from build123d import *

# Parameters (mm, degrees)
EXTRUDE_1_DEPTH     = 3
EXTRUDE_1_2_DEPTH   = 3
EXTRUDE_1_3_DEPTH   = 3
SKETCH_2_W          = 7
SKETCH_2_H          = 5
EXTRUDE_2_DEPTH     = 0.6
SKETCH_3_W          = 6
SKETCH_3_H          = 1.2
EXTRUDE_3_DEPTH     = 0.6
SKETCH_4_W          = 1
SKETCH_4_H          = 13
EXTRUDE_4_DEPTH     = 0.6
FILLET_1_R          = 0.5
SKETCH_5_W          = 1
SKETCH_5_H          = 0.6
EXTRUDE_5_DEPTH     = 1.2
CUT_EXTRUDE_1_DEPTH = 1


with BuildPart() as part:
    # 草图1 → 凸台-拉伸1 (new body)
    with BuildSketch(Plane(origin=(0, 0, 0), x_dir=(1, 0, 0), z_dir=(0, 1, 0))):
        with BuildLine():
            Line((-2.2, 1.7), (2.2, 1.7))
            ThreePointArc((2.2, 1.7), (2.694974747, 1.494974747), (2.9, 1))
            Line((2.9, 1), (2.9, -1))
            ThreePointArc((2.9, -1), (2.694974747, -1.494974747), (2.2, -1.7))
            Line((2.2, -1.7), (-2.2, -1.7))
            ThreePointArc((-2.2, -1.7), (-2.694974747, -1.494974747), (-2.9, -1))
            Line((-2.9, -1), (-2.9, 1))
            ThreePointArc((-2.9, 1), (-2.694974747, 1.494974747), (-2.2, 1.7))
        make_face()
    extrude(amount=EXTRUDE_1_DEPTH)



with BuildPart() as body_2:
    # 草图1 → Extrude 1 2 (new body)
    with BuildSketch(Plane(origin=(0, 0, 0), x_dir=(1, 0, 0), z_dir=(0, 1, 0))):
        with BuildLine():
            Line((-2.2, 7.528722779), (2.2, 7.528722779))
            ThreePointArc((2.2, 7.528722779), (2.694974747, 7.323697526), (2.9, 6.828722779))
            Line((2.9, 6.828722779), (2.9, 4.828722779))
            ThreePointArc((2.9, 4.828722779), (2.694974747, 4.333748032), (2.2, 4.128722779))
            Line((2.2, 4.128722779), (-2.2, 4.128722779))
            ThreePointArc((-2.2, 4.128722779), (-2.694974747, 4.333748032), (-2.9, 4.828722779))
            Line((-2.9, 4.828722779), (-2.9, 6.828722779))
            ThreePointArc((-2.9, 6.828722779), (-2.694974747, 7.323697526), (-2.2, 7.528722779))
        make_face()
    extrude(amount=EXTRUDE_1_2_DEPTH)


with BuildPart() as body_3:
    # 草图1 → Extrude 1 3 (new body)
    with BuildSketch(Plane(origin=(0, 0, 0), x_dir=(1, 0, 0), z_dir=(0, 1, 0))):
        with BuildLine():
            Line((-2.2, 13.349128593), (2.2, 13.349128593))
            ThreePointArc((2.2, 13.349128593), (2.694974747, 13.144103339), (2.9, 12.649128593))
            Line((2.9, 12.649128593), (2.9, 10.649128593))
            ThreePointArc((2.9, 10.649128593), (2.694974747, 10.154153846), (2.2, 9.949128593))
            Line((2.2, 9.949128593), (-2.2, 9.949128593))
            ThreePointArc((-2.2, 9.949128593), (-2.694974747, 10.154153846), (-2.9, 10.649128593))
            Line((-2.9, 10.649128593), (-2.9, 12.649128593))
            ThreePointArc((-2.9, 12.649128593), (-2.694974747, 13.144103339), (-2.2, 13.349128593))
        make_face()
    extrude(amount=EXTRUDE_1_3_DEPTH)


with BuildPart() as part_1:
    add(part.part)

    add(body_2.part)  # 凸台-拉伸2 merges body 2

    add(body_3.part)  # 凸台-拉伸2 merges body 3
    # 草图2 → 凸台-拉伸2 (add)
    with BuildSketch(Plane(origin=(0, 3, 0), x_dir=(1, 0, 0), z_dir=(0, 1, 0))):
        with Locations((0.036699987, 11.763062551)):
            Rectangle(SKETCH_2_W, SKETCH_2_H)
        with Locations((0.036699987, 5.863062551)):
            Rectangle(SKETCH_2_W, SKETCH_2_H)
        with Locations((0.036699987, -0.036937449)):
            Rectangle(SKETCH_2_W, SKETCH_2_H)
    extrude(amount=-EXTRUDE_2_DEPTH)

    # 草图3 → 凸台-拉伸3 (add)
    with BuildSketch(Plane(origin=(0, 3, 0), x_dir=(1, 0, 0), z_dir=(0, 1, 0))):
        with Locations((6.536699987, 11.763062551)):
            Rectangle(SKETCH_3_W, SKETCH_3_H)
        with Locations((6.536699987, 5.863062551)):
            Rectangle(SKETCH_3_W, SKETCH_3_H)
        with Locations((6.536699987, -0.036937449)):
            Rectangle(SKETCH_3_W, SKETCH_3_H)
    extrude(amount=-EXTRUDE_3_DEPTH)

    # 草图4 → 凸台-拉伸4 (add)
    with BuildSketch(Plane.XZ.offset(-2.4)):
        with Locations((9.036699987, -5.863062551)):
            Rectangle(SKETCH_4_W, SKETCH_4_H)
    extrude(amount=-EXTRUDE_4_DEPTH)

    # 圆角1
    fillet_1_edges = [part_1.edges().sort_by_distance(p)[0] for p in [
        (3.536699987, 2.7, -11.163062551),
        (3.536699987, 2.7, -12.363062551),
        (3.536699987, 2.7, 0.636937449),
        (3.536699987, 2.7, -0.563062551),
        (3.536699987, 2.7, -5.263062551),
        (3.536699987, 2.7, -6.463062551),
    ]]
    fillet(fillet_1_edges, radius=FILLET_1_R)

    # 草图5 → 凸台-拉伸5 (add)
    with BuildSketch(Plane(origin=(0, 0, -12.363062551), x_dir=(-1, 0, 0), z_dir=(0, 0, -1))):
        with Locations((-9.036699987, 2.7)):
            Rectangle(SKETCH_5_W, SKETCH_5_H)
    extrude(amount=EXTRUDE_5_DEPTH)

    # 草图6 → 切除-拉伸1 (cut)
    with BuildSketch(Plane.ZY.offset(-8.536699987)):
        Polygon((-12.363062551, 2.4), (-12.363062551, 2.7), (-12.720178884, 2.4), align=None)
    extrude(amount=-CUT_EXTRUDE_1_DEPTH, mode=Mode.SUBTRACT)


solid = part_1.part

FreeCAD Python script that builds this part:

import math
import FreeCAD as App
import Part
import Sketcher
Q = App.Units.Quantity


def edges_at(feature, points):
    """Names of the edges that pass closest to the given points."""
    edges = feature.Shape.Edges
    near = lambda p: min(range(len(edges)), key=lambda i: edges[i].distToShape(Part.Vertex(*p))[0])
    return sorted({f"Edge{near(p) + 1}" for p in points})


def add_polygon(sketch, points):
    """Adds a closed chain of lines whose ends are joined by coincident constraints."""
    first, n = sketch.GeometryCount, len(points)
    for a, b in zip(points, points[1:] + points[:1]):
        sketch.addGeometry(Part.LineSegment(App.Vector(*a, 0), App.Vector(*b, 0)), False)
    for i in range(n):
        sketch.addConstraint(Sketcher.Constraint("Coincident", first + i, 2, first + (i + 1) % n, 1))

doc = App.newDocument("Part")
body = doc.addObject("PartDesign::Body", "Body")

# Sketch on XZ plane
sketch1 = doc.addObject("Sketcher::SketchObject", "Sketch")
body.addObject(sketch1)
sketch1.AttachmentSupport = (doc.XZ_Plane, [""])
sketch1.MapMode = "FlatFace"
sketch1.addGeometry([
    Part.LineSegment(App.Vector(2.2, -1.7, 0), App.Vector(-2.2, -1.7, 0)),  # 0
    Part.ArcOfCircle(Part.Circle(App.Vector(-2.2, -1, 0), App.Vector(0, 0, 1), 0.7), math.radians(180), math.radians(270)),  # 1
    Part.LineSegment(App.Vector(-2.9, -1, 0), App.Vector(-2.9, 1, 0)),  # 2
    Part.ArcOfCircle(Part.Circle(App.Vector(-2.2, 1, 0), App.Vector(0, 0, 1), 0.7), math.radians(90), math.radians(180)),  # 3
    Part.LineSegment(App.Vector(-2.2, 1.7, 0), App.Vector(2.2, 1.7, 0)),  # 4
    Part.ArcOfCircle(Part.Circle(App.Vector(2.2, 1, 0), App.Vector(0, 0, 1), 0.7), math.radians(0), math.radians(90)),  # 5
    Part.LineSegment(App.Vector(2.9, 1, 0), App.Vector(2.9, -1, 0)),  # 6
    Part.ArcOfCircle(Part.Circle(App.Vector(2.2, -1, 0), App.Vector(0, 0, 1), 0.7), math.radians(-90), math.radians(0)),  # 7
], False)
sketch1.addConstraint([
    Sketcher.Constraint("Tangent", 0, 2, 1, 2),
    Sketcher.Constraint("Tangent", 1, 1, 2, 1),
    Sketcher.Constraint("Tangent", 2, 2, 3, 2),
    Sketcher.Constraint("Tangent", 3, 1, 4, 1),
    Sketcher.Constraint("Tangent", 4, 2, 5, 2),
    Sketcher.Constraint("Tangent", 5, 1, 6, 1),
    Sketcher.Constraint("Tangent", 6, 2, 7, 2),
    Sketcher.Constraint("Tangent", 7, 1, 0, 1),
    Sketcher.Constraint("Horizontal", 0),
    Sketcher.Constraint("Vertical", 2),
    Sketcher.Constraint("Horizontal", 4),
    Sketcher.Constraint("Vertical", 6),
    Sketcher.Constraint("Equal", 1, 3),
    Sketcher.Constraint("Equal", 3, 5),
    Sketcher.Constraint("Equal", 5, 7),
    Sketcher.Constraint("Symmetric", 1, 3, 5, 3, -1, 1),
    Sketcher.Constraint("Radius", 1, Q("0.7 mm")),
    Sketcher.Constraint("DistanceY", 2, 1, 2, 2, Q("2 mm")),
    Sketcher.Constraint("DistanceX", 0, 2, 0, 1, Q("4.4 mm")),
])
pad1 = doc.addObject("PartDesign::Pad", "Pad")
body.addObject(pad1)
pad1.Profile = sketch1
pad1.Length = 3
pad1.Reversed = True
body2 = doc.addObject("PartDesign::Body", "Body001")

# Sketch on XZ plane
sketch2 = doc.addObject("Sketcher::SketchObject", "Sketch001")
body2.addObject(sketch2)
sketch2.AttachmentSupport = (doc.getObject("XZ_Plane001"), [""])
sketch2.MapMode = "FlatFace"
sketch2.addGeometry([
    Part.LineSegment(App.Vector(2.2, -7.5, 0), App.Vector(-2.2, -7.5, 0)),  # 0
    Part.ArcOfCircle(Part.Circle(App.Vector(-2.2, -6.8, 0), App.Vector(0, 0, 1), 0.7), math.radians(180), math.radians(270)),  # 1
    Part.LineSegment(App.Vector(-2.9, -6.8, 0), App.Vector(-2.9, -4.8, 0)),  # 2
    Part.ArcOfCircle(Part.Circle(App.Vector(-2.2, -4.8, 0), App.Vector(0, 0, 1), 0.7), math.radians(90), math.radians(180)),  # 3
    Part.LineSegment(App.Vector(-2.2, -4.1, 0), App.Vector(2.2, -4.1, 0)),  # 4
    Part.ArcOfCircle(Part.Circle(App.Vector(2.2, -4.8, 0), App.Vector(0, 0, 1), 0.7), math.radians(0), math.radians(90)),  # 5
    Part.LineSegment(App.Vector(2.9, -4.8, 0), App.Vector(2.9, -6.8, 0)),  # 6
    Part.ArcOfCircle(Part.Circle(App.Vector(2.2, -6.8, 0), App.Vector(0, 0, 1), 0.7), math.radians(-90), math.radians(0)),  # 7
], False)
sketch2.addConstraint([
    Sketcher.Constraint("Tangent", 0, 2, 1, 2),
    Sketcher.Constraint("Tangent", 1, 1, 2, 1),
    Sketcher.Constraint("Tangent", 2, 2, 3, 2),
    Sketcher.Constraint("Tangent", 3, 1, 4, 1),
    Sketcher.Constraint("Tangent", 4, 2, 5, 2),
    Sketcher.Constraint("Tangent", 5, 1, 6, 1),
    Sketcher.Constraint("Tangent", 6, 2, 7, 2),
    Sketcher.Constraint("Tangent", 7, 1, 0, 1),
    Sketcher.Constraint("Horizontal", 0),
    Sketcher.Constraint("Vertical", 2),
    Sketcher.Constraint("Horizontal", 4),
    Sketcher.Constraint("Vertical", 6),
    Sketcher.Constraint("Equal", 1, 3),
    Sketcher.Constraint("Equal", 3, 5),
    Sketcher.Constraint("Equal", 5, 7),
    Sketcher.Constraint("Radius", 1, Q("0.7 mm")),
    Sketcher.Constraint("DistanceY", 2, 1, 2, 2, Q("2 mm")),
    Sketcher.Constraint("DistanceX", 0, 2, 0, 1, Q("4.4 mm")),
    Sketcher.Constraint("DistanceX", 1, 3, -1, 1, Q("2.2 mm")),
    Sketcher.Constraint("DistanceY", 1, 3, -1, 1, Q("6.828723 mm")),
])
pad2 = doc.addObject("PartDesign::Pad", "Pad001")
body2.addObject(pad2)
pad2.Profile = sketch2
pad2.Length = 3
pad2.Reversed = True
body3 = doc.addObject("PartDesign::Body", "Body002")

# Sketch on XZ plane
sketch3 = doc.addObject("Sketcher::SketchObject", "Sketch002")
body3.addObject(sketch3)
sketch3.AttachmentSupport = (doc.getObject("XZ_Plane002"), [""])
sketch3.MapMode = "FlatFace"
sketch3.addGeometry([
    Part.LineSegment(App.Vector(2.2, -13.3, 0), App.Vector(-2.2, -13.3, 0)),  # 0
    Part.ArcOfCircle(Part.Circle(App.Vector(-2.2, -12.6, 0), App.Vector(0, 0, 1), 0.7), math.radians(-180), math.radians(-90)),  # 1
    Part.LineSegment(App.Vector(-2.9, -12.6, 0), App.Vector(-2.9, -10.6, 0)),  # 2
    Part.ArcOfCircle(Part.Circle(App.Vector(-2.2, -10.6, 0), App.Vector(0, 0, 1), 0.7), math.radians(90), math.radians(180)),  # 3
    Part.LineSegment(App.Vector(-2.2, -9.9, 0), App.Vector(2.2, -9.9, 0)),  # 4
    Part.ArcOfCircle(Part.Circle(App.Vector(2.2, -10.6, 0), App.Vector(0, 0, 1), 0.7), math.radians(0), math.radians(90)),  # 5
    Part.LineSegment(App.Vector(2.9, -10.6, 0), App.Vector(2.9, -12.6, 0)),  # 6
    Part.ArcOfCircle(Part.Circle(App.Vector(2.2, -12.6, 0), App.Vector(0, 0, 1), 0.7), math.radians(-90), math.radians(0)),  # 7
], False)
sketch3.addConstraint([
    Sketcher.Constraint("Tangent", 0, 2, 1, 2),
    Sketcher.Constraint("Tangent", 1, 1, 2, 1),
    Sketcher.Constraint("Tangent", 2, 2, 3, 2),
    Sketcher.Constraint("Tangent", 3, 1, 4, 1),
    Sketcher.Constraint("Tangent", 4, 2, 5, 2),
    Sketcher.Constraint("Tangent", 5, 1, 6, 1),
    Sketcher.Constraint("Tangent", 6, 2, 7, 2),
    Sketcher.Constraint("Tangent", 7, 1, 0, 1),
    Sketcher.Constraint("Horizontal", 0),
    Sketcher.Constraint("Vertical", 2),
    Sketcher.Constraint("Horizontal", 4),
    Sketcher.Constraint("Vertical", 6),
    Sketcher.Constraint("Equal", 1, 3),
    Sketcher.Constraint("Equal", 3, 5),
    Sketcher.Constraint("Equal", 5, 7),
    Sketcher.Constraint("Radius", 1, Q("0.7 mm")),
    Sketcher.Constraint("DistanceY", 2, 1, 2, 2, Q("2 mm")),
    Sketcher.Constraint("DistanceX", 0, 2, 0, 1, Q("4.4 mm")),
    Sketcher.Constraint("DistanceX", 1, 3, -1, 1, Q("2.2 mm")),
    Sketcher.Constraint("DistanceY", 1, 3, -1, 1, Q("12.649129 mm")),
])
pad3 = doc.addObject("PartDesign::Pad", "Pad002")
body3.addObject(pad3)
pad3.Profile = sketch3
pad3.Length = 3
pad3.Reversed = True
body.AllowCompound = True
doc.recompute()

boolean = doc.addObject("PartDesign::Boolean", "Boolean")
body.addObject(boolean)
boolean.Type = "Fuse"
boolean.addObjects([body2])
doc.recompute()

boolean2 = doc.addObject("PartDesign::Boolean", "Boolean001")
body.addObject(boolean2)
boolean2.Type = "Fuse"
boolean2.addObjects([body3])

# Sketch on XZ plane
sketch4 = doc.addObject("Sketcher::SketchObject", "Sketch003")
body.addObject(sketch4)
sketch4.AttachmentSupport = (doc.XZ_Plane, [""])
sketch4.MapMode = "FlatFace"
sketch4.AttachmentOffset = App.Placement(App.Vector(0, 0, -3), App.Rotation())
add_polygon(sketch4, [(-3, -14), (-3, -9), (4, -9), (4, -14)])  # lines 0-3
add_polygon(sketch4, [(-3, -8), (-3, -3), (4, -3), (4, -8)])  # lines 4-7
add_polygon(sketch4, [(-3, -2), (-3, 3), (4, 3), (4, -2)])  # lines 8-11
sketch4.addConstraint([
    Sketcher.Constraint("Vertical", 0),
    Sketcher.Constraint("Horizontal", 1),
    Sketcher.Constraint("Vertical", 2),
    Sketcher.Constraint("Horizontal", 3),
    Sketcher.Constraint("Vertical", 4),
    Sketcher.Constraint("Horizontal", 5),
    Sketcher.Constraint("Vertical", 6),
    Sketcher.Constraint("Horizontal", 7),
    Sketcher.Constraint("Vertical", 8),
    Sketcher.Constraint("Horizontal", 9),
    Sketcher.Constraint("Vertical", 10),
    Sketcher.Constraint("Horizontal", 11),
    Sketcher.Constraint("Vertical", 3, 2, 4, 2),
    Sketcher.Constraint("Vertical", 2, 2, 5, 2),
    Sketcher.Constraint("Vertical", 7, 2, 8, 2),
    Sketcher.Constraint("Vertical", 6, 2, 9, 2),
    Sketcher.Constraint("Equal", 2, 4),
    Sketcher.Constraint("Equal", 6, 8),
    Sketcher.Constraint("DistanceX", 1, 1, 1, 2, Q("7 mm")),
    Sketcher.Constraint("DistanceY", 0, 1, 0, 2, Q("5 mm")),
    Sketcher.Constraint("DistanceY", 0, 2, 4, 2, Q("5.9 mm")),
    Sketcher.Constraint("DistanceY", 4, 2, 8, 2, Q("5.9 mm")),
    Sketcher.Constraint("DistanceX", 0, 2, -1, 1, Q("3.4633 mm")),
    Sketcher.Constraint("DistanceY", 0, 2, -1, 1, Q("9.263063 mm")),
])
pad4 = doc.addObject("PartDesign::Pad", "Pad003")
body.addObject(pad4)
pad4.Profile = sketch4
pad4.Length = 0.6

# Sketch on XZ plane
sketch5 = doc.addObject("Sketcher::SketchObject", "Sketch004")
body.addObject(sketch5)
sketch5.AttachmentSupport = (doc.XZ_Plane, [""])
sketch5.MapMode = "FlatFace"
sketch5.AttachmentOffset = App.Placement(App.Vector(0, 0, -3), App.Rotation())
add_polygon(sketch5, [(3.5, -12.4), (3.5, -11.2), (9.5, -11.2), (9.5, -12.4)])  # lines 0-3
add_polygon(sketch5, [(3.5, -6.5), (3.5, -5.3), (9.5, -5.3), (9.5, -6.5)])  # lines 4-7
add_polygon(sketch5, [(3.5, -0.6), (3.5, 0.6), (9.5, 0.6), (9.5, -0.6)])  # lines 8-11
sketch5.addConstraint([
    Sketcher.Constraint("Vertical", 0),
    Sketcher.Constraint("Horizontal", 1),
    Sketcher.Constraint("Vertical", 2),
    Sketcher.Constraint("Horizontal", 3),
    Sketcher.Constraint("Vertical", 4),
    Sketcher.Constraint("Horizontal", 5),
    Sketcher.Constraint("Vertical", 6),
    Sketcher.Constraint("Horizontal", 7),
    Sketcher.Constraint("Vertical", 8),
    Sketcher.Constraint("Horizontal", 9),
    Sketcher.Constraint("Vertical", 10),
    Sketcher.Constraint("Horizontal", 11),
    Sketcher.Constraint("Vertical", 3, 2, 4, 2),
    Sketcher.Constraint("Vertical", 2, 2, 5, 2),
    Sketcher.Constraint("Vertical", 7, 2, 8, 2),
    Sketcher.Constraint("Vertical", 6, 2, 9, 2),
    Sketcher.Constraint("Equal", 2, 4),
    Sketcher.Constraint("Equal", 6, 8),
    Sketcher.Constraint("DistanceX", 1, 1, 1, 2, Q("6 mm")),
    Sketcher.Constraint("DistanceY", 0, 1, 0, 2, Q("1.2 mm")),
    Sketcher.Constraint("DistanceY", 0, 2, 4, 2, Q("5.9 mm")),
    Sketcher.Constraint("DistanceY", 4, 2, 8, 2, Q("5.9 mm")),
    Sketcher.Constraint("DistanceX", -1, 1, 0, 2, Q("3.5367 mm")),
    Sketcher.Constraint("DistanceY", 0, 2, -1, 1, Q("11.163063 mm")),
])
pad5 = doc.addObject("PartDesign::Pad", "Pad004")
body.addObject(pad5)
pad5.Profile = sketch5
pad5.Length = 0.6

# Sketch on XZ plane
sketch6 = doc.addObject("Sketcher::SketchObject", "Sketch005")
body.addObject(sketch6)
sketch6.AttachmentSupport = (doc.XZ_Plane, [""])
sketch6.MapMode = "FlatFace"
sketch6.AttachmentOffset = App.Placement(App.Vector(0, 0, -2.4), App.Rotation())
add_polygon(sketch6, [(8.5, 0.6), (8.5, -12.4), (9.5, -12.4), (9.5, 0.6)])  # lines 0-3
sketch6.addConstraint([
    Sketcher.Constraint("Vertical", 0),
    Sketcher.Constraint("Horizontal", 1),
    Sketcher.Constraint("Vertical", 2),
    Sketcher.Constraint("Horizontal", 3),
    Sketcher.Constraint("DistanceX", 1, 1, 1, 2, Q("1 mm")),
    Sketcher.Constraint("DistanceY", 0, 2, 0, 1, Q("13 mm")),
    Sketcher.Constraint("DistanceX", -1, 1, 0, 2, Q("8.5367 mm")),
    Sketcher.Constraint("DistanceY", 0, 2, -1, 1, Q("12.363063 mm")),
])
pad6 = doc.addObject("PartDesign::Pad", "Pad005")
body.addObject(pad6)
pad6.Profile = sketch6
pad6.Length = 0.6
pad6.Reversed = True
doc.recompute()

fillet = doc.addObject("PartDesign::Fillet", "Fillet")
body.addObject(fillet)
fillet.Base = (pad6, edges_at(pad6, [
    (3.537, 2.7, -11.163),
    (3.537, 2.7, -12.363),
    (3.537, 2.7, 0.637),
    (3.537, 2.7, -0.563),
    (3.537, 2.7, -5.263),
    (3.537, 2.7, -6.463),
]))
fillet.Radius = 0.5

# Sketch on XY plane
sketch7 = doc.addObject("Sketcher::SketchObject", "Sketch006")
body.addObject(sketch7)
sketch7.AttachmentSupport = (doc.XY_Plane, [""])
sketch7.MapMode = "FlatFace"
sketch7.AttachmentOffset = App.Placement(App.Vector(0, 0, -12.363063), App.Rotation())
add_polygon(sketch7, [(9.5, 3), (9.5, 2.4), (8.5, 2.4), (8.5, 3)])  # lines 0-3
sketch7.addConstraint([
    Sketcher.Constraint("Vertical", 0),
    Sketcher.Constraint("Horizontal", 1),
    Sketcher.Constraint("Vertical", 2),
    Sketcher.Constraint("Horizontal", 3),
    Sketcher.Constraint("DistanceX", 1, 2, 1, 1, Q("1 mm")),
    Sketcher.Constraint("DistanceY", 0, 2, 0, 1, Q("0.6 mm")),
    Sketcher.Constraint("DistanceY", -1, 1, 2, 2, Q("3 mm")),
    Sketcher.Constraint("DistanceX", -1, 1, 0, 2, Q("9.5367 mm")),
])
pad7 = doc.addObject("PartDesign::Pad", "Pad006")
body.addObject(pad7)
pad7.Profile = sketch7
pad7.Length = 1.2
pad7.Reversed = True

# Sketch on YZ plane
sketch8 = doc.addObject("Sketcher::SketchObject", "Sketch007")
body.addObject(sketch8)
sketch8.AttachmentSupport = (doc.YZ_Plane, [""])
sketch8.MapMode = "FlatFace"
sketch8.AttachmentOffset = App.Placement(App.Vector(0, 0, 8.5367), App.Rotation())
add_polygon(sketch8, [(2.4, -12.36), (2.7, -12.36), (2.4, -12.72)])  # lines 0-2
sketch8.addConstraint([
    Sketcher.Constraint("Horizontal", 0),
    Sketcher.Constraint("Vertical", 2),
    Sketcher.Constraint("DistanceX", 0, 1, 0, 2, Q("0.3 mm")),
    Sketcher.Constraint("DistanceX", -1, 1, 0, 2, Q("2.7 mm")),
    Sketcher.Constraint("DistanceY", 2, 1, 2, 2, Q("0.357116 mm")),
    Sketcher.Constraint("DistanceY", 1, 2, -1, 1, Q("12.720179 mm")),
])
pocket1 = doc.addObject("PartDesign::Pocket", "Pocket")
body.addObject(pocket1)
pocket1.Profile = sketch8
pocket1.Length = 1
pocket1.Reversed = True

doc.recompute()
